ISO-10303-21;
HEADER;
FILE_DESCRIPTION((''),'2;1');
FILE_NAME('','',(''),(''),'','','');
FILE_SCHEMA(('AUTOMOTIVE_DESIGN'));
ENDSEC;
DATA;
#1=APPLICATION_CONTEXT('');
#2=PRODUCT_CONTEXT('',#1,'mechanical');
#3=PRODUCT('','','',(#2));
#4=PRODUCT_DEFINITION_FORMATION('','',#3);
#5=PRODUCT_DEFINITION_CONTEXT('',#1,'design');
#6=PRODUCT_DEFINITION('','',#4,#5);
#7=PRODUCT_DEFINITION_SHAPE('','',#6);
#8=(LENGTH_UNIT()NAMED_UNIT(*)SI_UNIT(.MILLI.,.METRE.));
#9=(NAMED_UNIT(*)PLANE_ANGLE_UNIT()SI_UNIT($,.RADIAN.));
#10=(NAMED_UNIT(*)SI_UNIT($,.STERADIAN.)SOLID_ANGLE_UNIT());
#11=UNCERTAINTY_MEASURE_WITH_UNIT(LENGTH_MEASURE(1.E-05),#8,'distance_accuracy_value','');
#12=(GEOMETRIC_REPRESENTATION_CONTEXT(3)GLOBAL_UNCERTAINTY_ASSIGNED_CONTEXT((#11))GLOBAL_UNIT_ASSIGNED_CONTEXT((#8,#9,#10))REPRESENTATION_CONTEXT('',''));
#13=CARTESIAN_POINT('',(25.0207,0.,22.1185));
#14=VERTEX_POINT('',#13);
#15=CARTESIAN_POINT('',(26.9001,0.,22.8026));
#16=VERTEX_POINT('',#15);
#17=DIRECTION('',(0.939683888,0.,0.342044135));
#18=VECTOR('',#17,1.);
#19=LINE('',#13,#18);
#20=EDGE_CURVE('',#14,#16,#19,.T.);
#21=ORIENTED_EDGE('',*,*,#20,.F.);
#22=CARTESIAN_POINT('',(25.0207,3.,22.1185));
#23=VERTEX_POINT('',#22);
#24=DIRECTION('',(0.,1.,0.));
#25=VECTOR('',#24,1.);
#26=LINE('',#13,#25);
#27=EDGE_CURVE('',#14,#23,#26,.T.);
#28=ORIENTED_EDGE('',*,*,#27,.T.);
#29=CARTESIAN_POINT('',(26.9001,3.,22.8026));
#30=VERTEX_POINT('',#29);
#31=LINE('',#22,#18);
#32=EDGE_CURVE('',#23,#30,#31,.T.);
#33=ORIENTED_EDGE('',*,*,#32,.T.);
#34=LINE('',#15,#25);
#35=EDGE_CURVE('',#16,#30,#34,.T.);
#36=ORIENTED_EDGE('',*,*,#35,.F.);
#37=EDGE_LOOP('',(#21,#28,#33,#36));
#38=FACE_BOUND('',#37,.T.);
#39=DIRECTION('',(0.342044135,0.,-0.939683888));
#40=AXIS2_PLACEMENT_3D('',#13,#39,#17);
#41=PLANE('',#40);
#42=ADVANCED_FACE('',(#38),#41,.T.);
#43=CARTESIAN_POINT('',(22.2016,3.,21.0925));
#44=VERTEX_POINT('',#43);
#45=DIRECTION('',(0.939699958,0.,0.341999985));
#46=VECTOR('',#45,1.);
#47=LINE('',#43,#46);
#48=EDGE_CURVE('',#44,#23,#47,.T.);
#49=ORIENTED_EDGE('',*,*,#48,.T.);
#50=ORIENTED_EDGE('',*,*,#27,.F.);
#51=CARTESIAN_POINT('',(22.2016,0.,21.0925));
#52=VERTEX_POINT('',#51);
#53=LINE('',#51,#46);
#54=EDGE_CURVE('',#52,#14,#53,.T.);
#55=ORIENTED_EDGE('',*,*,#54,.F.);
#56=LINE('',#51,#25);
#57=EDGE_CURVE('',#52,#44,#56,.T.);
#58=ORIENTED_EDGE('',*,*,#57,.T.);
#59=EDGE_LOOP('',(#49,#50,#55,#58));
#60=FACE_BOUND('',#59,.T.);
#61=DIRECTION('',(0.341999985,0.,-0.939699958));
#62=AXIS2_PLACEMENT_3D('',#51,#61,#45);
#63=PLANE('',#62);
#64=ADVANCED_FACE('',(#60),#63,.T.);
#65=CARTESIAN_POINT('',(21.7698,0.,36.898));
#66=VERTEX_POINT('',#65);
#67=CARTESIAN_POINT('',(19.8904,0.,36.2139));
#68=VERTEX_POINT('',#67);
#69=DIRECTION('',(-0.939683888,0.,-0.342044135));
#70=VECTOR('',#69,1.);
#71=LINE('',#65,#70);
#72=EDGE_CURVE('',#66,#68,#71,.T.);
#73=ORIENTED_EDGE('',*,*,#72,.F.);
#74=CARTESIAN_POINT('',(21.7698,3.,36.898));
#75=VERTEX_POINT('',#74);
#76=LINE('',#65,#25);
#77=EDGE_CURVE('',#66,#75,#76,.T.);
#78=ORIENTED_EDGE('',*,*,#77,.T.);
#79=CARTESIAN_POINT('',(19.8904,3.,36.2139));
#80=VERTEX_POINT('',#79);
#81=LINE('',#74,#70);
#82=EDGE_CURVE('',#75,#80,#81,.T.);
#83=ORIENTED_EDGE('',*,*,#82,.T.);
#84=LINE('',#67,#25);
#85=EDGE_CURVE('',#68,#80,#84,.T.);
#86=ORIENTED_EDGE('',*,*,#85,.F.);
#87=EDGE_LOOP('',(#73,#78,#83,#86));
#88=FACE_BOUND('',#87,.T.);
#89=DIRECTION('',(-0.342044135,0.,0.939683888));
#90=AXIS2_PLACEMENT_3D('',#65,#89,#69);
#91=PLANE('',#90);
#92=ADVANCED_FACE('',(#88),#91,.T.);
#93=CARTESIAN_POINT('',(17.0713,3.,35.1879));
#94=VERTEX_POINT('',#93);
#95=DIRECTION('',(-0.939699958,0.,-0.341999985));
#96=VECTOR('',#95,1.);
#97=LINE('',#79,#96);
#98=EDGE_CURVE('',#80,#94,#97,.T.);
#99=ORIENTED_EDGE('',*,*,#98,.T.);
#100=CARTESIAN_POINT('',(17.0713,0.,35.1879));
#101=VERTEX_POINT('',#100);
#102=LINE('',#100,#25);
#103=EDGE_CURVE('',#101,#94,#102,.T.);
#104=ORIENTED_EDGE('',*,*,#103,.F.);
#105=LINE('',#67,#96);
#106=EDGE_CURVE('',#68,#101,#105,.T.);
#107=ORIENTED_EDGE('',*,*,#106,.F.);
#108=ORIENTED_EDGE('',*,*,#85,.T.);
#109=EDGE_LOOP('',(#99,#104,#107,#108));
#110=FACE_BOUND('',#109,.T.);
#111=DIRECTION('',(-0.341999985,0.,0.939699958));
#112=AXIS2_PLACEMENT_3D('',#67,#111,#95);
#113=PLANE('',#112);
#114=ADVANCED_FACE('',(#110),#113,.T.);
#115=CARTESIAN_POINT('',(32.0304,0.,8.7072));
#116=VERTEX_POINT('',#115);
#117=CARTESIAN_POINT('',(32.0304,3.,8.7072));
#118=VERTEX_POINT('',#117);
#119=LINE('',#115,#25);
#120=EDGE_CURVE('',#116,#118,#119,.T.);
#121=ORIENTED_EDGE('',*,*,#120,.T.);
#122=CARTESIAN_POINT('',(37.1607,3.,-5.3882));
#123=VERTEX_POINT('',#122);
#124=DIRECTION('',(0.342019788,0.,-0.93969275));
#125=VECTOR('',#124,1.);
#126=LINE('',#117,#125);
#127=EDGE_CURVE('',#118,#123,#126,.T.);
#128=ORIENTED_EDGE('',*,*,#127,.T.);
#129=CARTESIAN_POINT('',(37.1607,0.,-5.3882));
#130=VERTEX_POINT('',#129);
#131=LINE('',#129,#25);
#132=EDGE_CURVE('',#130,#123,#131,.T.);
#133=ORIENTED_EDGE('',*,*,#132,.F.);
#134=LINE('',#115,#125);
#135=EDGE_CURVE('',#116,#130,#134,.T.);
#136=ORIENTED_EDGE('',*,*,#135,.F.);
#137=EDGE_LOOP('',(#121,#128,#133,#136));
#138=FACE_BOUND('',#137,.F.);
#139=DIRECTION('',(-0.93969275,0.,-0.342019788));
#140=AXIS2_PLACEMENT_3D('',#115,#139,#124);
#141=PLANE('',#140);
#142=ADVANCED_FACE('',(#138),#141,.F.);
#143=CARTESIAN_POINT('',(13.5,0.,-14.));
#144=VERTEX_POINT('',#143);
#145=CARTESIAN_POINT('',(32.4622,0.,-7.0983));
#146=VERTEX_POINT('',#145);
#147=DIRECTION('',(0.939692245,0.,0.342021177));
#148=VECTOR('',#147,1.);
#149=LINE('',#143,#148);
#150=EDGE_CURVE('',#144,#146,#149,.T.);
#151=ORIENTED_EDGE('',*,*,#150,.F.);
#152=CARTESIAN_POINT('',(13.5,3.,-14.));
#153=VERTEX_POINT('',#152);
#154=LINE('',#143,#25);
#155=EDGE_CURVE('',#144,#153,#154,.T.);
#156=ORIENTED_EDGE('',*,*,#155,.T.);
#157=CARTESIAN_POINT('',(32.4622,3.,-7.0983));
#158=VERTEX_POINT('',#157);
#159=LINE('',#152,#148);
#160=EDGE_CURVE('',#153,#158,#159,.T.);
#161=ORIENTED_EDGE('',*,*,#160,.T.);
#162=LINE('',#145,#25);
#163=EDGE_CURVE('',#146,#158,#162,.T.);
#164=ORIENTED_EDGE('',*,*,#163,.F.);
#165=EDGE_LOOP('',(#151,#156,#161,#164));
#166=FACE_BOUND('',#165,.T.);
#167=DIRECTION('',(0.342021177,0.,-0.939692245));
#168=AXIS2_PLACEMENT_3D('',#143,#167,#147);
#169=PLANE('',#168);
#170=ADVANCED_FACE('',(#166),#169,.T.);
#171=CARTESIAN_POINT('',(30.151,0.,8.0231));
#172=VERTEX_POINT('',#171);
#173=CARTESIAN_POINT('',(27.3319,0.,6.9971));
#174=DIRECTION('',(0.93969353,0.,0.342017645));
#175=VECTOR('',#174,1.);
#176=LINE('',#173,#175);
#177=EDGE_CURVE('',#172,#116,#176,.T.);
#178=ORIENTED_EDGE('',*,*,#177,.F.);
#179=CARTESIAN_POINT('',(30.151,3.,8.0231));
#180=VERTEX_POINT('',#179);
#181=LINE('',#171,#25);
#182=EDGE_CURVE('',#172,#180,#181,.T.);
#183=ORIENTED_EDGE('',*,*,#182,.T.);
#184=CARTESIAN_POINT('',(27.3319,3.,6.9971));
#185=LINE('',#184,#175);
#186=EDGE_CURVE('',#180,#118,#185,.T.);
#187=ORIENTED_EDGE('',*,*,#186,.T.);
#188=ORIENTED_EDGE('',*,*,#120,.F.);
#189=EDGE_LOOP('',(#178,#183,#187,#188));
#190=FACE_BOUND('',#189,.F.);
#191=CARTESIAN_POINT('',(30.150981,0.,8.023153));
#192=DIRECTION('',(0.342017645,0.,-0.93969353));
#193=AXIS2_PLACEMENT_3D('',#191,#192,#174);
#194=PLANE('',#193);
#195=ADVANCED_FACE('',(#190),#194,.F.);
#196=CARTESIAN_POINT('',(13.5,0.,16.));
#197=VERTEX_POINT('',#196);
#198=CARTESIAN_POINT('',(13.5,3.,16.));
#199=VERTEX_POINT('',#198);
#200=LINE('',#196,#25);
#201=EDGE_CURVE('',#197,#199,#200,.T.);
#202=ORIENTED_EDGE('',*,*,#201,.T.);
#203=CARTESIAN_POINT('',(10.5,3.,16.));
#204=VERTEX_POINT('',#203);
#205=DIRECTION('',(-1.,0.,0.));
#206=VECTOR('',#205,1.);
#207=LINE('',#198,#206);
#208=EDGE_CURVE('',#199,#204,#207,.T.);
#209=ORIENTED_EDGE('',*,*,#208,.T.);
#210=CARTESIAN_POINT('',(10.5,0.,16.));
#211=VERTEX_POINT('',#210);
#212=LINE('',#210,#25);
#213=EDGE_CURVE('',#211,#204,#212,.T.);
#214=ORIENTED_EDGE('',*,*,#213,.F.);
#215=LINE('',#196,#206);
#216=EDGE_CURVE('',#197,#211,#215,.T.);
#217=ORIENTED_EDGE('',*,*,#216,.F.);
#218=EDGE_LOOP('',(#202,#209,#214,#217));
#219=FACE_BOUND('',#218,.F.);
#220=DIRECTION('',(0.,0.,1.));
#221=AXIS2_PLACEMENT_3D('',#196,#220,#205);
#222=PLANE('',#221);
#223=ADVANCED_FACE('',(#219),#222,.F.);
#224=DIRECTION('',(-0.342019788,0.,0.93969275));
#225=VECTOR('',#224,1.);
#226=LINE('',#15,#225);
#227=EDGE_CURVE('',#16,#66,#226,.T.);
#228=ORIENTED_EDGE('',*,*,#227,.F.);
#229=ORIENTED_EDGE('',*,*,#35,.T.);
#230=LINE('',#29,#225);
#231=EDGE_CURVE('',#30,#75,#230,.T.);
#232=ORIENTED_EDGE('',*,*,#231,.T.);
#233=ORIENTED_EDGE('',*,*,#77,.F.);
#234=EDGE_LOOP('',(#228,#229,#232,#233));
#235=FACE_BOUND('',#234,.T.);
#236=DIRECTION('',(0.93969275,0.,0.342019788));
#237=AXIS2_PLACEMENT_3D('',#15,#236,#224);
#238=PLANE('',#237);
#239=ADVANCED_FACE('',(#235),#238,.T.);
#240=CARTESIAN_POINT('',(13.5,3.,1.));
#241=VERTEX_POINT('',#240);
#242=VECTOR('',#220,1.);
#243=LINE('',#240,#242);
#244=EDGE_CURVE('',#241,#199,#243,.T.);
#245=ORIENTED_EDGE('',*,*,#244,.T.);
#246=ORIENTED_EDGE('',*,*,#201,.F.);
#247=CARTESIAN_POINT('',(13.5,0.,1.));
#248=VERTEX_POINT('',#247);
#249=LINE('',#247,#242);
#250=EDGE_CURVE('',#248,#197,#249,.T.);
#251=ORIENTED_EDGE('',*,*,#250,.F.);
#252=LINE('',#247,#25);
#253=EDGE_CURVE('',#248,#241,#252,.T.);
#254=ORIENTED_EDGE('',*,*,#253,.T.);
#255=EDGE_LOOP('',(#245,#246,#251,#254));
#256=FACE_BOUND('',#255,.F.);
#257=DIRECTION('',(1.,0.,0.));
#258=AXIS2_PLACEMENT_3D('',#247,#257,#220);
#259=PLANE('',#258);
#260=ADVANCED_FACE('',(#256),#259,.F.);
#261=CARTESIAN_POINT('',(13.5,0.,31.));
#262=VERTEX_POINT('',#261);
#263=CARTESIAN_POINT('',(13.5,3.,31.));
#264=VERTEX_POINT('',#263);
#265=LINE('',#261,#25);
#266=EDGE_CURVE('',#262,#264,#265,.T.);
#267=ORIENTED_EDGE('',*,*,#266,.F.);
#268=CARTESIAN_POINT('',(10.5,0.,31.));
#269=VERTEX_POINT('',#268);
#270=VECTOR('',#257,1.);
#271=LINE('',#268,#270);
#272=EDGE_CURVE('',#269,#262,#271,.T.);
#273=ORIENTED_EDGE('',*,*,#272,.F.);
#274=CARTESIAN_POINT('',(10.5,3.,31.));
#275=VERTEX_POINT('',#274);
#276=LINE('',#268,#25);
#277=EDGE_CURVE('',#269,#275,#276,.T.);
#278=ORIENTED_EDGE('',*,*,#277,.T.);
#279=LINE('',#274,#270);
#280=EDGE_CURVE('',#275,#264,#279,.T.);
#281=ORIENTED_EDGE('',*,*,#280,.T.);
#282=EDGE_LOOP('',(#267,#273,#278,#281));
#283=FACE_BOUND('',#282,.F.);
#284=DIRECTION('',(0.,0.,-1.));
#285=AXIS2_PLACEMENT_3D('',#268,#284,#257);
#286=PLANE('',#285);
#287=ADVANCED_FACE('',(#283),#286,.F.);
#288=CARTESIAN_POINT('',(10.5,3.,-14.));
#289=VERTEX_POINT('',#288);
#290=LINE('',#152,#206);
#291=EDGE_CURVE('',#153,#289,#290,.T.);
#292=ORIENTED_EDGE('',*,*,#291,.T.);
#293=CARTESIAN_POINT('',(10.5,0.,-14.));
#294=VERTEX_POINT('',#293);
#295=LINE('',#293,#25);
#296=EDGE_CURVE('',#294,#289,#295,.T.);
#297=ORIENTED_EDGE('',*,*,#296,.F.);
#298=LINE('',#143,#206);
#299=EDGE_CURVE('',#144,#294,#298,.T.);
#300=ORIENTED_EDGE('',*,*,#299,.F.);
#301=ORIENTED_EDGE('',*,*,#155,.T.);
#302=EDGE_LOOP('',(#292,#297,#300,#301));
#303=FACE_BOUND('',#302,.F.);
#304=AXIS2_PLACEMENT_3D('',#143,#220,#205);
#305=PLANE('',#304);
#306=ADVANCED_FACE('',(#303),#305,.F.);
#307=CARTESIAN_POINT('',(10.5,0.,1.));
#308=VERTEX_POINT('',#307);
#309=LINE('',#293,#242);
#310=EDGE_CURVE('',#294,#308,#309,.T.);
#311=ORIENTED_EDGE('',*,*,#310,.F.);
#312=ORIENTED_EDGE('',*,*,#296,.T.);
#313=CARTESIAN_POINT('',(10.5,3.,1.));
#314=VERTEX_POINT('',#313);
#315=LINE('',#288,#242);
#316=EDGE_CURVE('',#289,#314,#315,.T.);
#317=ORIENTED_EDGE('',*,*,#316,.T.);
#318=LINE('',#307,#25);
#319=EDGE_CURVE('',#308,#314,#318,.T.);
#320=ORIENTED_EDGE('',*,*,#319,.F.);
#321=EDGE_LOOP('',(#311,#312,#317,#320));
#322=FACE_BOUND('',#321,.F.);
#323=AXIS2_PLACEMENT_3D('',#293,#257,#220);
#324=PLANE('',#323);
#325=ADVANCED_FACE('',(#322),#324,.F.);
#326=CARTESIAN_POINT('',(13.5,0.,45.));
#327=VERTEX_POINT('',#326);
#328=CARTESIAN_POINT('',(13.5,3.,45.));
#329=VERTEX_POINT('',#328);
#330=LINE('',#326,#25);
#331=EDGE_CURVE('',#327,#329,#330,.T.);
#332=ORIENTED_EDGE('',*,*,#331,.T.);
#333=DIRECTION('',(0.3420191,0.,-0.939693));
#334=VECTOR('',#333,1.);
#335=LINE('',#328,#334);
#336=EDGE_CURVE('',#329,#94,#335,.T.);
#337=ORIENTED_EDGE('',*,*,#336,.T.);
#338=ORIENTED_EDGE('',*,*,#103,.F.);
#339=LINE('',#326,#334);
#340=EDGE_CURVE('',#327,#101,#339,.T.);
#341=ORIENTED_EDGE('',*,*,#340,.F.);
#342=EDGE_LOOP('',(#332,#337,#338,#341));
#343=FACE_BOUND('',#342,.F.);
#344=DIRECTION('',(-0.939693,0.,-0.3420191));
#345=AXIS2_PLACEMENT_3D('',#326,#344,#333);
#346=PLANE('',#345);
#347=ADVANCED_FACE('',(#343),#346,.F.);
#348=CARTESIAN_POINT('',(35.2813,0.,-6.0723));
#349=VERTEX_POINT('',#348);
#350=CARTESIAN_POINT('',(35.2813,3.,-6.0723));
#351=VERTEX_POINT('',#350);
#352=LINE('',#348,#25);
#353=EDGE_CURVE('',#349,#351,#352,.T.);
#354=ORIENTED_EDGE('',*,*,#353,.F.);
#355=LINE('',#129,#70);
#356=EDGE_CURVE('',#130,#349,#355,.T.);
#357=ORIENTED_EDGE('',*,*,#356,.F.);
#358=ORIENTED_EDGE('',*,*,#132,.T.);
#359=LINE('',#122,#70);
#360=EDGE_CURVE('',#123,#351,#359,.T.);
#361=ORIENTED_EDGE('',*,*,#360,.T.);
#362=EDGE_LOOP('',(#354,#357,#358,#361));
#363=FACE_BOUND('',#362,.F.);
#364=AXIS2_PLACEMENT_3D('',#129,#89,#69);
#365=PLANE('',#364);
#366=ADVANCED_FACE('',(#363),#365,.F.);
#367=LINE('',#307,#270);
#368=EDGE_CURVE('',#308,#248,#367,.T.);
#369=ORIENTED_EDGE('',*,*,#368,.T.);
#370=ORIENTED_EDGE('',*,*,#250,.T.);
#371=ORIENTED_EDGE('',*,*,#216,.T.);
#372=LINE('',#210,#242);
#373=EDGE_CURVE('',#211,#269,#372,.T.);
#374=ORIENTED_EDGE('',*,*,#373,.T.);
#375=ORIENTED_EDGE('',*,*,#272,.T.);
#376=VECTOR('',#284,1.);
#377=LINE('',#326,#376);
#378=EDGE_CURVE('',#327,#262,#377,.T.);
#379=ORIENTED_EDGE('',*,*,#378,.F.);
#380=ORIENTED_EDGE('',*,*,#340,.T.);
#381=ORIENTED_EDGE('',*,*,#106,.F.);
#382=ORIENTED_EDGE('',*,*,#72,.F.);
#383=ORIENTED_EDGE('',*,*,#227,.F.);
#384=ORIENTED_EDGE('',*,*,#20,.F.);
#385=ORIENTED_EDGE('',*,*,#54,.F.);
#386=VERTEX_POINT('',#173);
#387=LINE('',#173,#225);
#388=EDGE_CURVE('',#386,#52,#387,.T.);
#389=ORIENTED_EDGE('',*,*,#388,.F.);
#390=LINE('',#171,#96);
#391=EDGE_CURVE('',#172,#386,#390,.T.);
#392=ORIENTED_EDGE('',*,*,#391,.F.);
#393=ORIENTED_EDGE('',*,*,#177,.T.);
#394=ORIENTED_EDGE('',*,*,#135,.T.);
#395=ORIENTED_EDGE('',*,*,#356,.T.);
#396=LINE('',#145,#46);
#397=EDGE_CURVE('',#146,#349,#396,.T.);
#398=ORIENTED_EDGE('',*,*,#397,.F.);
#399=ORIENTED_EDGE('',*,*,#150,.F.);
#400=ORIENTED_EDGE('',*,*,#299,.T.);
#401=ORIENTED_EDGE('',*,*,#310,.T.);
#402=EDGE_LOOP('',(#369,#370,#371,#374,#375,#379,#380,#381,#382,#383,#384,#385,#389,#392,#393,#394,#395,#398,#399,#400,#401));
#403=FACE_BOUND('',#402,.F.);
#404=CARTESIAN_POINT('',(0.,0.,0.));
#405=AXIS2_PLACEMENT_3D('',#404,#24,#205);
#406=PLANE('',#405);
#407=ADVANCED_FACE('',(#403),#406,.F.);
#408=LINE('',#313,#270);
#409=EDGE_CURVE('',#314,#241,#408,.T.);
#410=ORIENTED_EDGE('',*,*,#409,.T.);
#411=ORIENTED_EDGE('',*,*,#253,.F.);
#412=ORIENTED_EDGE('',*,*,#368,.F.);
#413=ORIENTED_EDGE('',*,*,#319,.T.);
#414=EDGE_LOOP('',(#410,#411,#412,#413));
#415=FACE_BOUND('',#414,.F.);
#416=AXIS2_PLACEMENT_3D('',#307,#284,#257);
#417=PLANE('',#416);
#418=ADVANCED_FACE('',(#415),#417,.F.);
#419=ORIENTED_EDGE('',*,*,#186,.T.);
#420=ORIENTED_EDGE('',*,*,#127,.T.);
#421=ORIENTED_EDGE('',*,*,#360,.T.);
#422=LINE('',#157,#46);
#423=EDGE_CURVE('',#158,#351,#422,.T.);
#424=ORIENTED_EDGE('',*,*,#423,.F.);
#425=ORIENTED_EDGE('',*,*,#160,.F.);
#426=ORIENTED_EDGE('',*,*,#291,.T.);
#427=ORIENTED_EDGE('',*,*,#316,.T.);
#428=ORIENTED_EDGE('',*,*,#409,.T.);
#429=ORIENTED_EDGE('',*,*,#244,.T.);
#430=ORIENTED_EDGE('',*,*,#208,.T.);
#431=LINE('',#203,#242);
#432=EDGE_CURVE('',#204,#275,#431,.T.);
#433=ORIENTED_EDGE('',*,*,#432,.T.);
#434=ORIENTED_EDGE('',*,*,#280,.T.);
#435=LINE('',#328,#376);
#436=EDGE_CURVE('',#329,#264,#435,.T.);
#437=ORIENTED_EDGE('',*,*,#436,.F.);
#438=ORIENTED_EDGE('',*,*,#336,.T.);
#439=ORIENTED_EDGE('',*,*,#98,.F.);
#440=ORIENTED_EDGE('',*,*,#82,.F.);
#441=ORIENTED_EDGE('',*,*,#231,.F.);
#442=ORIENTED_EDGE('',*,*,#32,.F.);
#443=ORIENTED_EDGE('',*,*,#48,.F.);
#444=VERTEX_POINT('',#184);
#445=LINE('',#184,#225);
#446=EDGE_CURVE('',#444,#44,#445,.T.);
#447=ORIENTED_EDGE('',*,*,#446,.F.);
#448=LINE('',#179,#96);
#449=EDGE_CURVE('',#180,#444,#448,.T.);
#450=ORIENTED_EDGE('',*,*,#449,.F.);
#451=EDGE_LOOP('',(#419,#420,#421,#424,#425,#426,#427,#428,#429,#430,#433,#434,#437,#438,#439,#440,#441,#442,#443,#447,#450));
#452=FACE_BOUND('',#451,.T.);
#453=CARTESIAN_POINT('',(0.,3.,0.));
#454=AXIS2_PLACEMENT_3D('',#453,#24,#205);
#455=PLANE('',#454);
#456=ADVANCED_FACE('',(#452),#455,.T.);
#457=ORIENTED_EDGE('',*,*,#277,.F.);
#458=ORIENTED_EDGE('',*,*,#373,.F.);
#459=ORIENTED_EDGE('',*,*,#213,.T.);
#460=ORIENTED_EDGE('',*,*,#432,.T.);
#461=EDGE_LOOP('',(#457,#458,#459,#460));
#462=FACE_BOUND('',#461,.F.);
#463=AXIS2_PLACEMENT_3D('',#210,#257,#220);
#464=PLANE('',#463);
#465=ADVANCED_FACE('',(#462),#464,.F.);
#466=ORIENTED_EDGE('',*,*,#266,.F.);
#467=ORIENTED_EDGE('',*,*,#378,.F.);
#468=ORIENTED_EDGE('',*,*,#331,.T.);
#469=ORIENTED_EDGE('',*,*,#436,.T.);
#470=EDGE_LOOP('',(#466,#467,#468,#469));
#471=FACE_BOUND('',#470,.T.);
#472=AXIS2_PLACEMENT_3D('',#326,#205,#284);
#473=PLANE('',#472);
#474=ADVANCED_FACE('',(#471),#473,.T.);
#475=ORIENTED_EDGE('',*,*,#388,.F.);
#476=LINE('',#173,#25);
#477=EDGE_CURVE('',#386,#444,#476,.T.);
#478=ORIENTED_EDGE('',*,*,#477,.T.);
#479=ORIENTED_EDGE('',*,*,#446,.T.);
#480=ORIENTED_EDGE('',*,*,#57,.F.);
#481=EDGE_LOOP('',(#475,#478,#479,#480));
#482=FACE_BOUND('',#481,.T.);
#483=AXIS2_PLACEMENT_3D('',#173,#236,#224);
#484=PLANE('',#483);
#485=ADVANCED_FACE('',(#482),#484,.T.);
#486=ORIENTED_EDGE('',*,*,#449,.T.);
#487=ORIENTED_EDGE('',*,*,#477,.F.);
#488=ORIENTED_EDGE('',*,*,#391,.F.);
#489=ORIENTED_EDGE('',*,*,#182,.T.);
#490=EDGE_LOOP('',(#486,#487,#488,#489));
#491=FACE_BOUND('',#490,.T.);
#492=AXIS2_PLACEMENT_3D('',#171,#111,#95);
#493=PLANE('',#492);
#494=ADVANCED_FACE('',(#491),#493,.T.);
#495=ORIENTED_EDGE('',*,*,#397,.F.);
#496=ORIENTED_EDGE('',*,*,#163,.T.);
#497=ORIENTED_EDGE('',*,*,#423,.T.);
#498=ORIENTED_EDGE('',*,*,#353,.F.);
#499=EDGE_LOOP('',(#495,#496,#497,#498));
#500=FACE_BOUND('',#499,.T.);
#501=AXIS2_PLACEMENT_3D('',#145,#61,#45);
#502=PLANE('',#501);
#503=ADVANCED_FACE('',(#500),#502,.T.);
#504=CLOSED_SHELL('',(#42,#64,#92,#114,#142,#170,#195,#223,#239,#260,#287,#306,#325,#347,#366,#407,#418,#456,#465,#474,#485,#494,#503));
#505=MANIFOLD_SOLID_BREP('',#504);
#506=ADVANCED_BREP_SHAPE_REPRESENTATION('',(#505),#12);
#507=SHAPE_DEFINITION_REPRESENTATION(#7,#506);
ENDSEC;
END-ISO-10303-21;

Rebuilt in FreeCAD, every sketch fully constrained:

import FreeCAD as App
import Part
import Sketcher
from FreeCAD import Vector
Q = App.Units.Quantity


def add_polygon(sketch, points):
    """Adds a closed chain of lines whose ends are joined by coincident constraints."""
    first, n = sketch.GeometryCount, len(points)
    for a, b in zip(points, points[1:] + points[:1]):
        sketch.addGeometry(Part.LineSegment(App.Vector(*a, 0), App.Vector(*b, 0)), False)
    for i in range(n):
        sketch.addConstraint(Sketcher.Constraint("Coincident", first + i, 2, first + (i + 1) % n, 1))

doc = App.newDocument("Part")
params = doc.addObject("Spreadsheet::Sheet", "Params")
for row, (alias, value) in enumerate([
    ("sketch1_width", "3 mm"),
    ("sketch1_height", "15 mm"),
    ("sketch1_length", "3 mm"),
    ("sketch1_length2", "15 mm"),
    ("sketch1_height2", "14 mm"),
    ("pad1_length", "3 mm"),
], start=1):
    params.set(f"A{row}", alias)
    params.set(f"B{row}", "=" + value)
    params.setAlias(f"B{row}", alias)

body = doc.addObject("PartDesign::Body", "Body")

# Sketch on XZ plane
sketch1 = body.newObject("Sketcher::SketchObject", "Sketch")
sketch1.AttachmentSupport = (doc.getObject("XZ_Plane"), [""])
sketch1.MapMode = "FlatFace"
add_polygon(sketch1, [(13.5, 1), (13.5, 16), (10.5, 16), (10.5, 31), (13.5, 31), (13.5, 45), (17.1, 35.2), (19.9, 36.2), (21.8, 36.9), (26.9, 22.8), (25, 22.1), (22.2, 21.1), (27.3, 7), (30.2, 8), (32, 8.7), (37.2, -5.4), (35.3, -6.1), (32.5, -7.1), (13.5, -14), (10.5, -14), (10.5, 1)])  # lines 0-20
sketch1.addConstraint([
    Sketcher.Constraint("Vertical", 0),
    Sketcher.Constraint("Horizontal", 1),
    Sketcher.Constraint("Vertical", 2),
    Sketcher.Constraint("Horizontal", 3),
    Sketcher.Constraint("Vertical", 4),
    Sketcher.Constraint("Horizontal", 18),
    Sketcher.Constraint("Vertical", 19),
    Sketcher.Constraint("Horizontal", 20),
    Sketcher.Constraint("Perpendicular", 5, 6),
    Sketcher.Constraint("Parallel", 6, 7),
    Sketcher.Constraint("Perpendicular", 7, 8),
    Sketcher.Constraint("Perpendicular", 8, 9),
    Sketcher.Constraint("Parallel", 9, 10),
    Sketcher.Constraint("Perpendicular", 10, 11),
    Sketcher.Constraint("Perpendicular", 11, 12),
    Sketcher.Constraint("Parallel", 12, 13),
    Sketcher.Constraint("Perpendicular", 13, 14),
    Sketcher.Constraint("Perpendicular", 14, 15),
    Sketcher.Constraint("Parallel", 15, 16),
    Sketcher.Constraint("Parallel", 16, 17),
    Sketcher.Constraint("Vertical", 0, 2, 3, 2),
    Sketcher.Constraint("Vertical", 4, 2, 17, 2),
    Sketcher.Constraint("Vertical", 2, 2, 18, 2),
    Sketcher.Constraint("Equal", 0, 2),
    Sketcher.Constraint("Equal", 2, 19),
    Sketcher.Constraint("Equal", 7, 9),
    Sketcher.Constraint("Equal", 6, 10),
    Sketcher.Constraint("Equal", 8, 11),
    Sketcher.Constraint("Equal", 10, 12),
    Sketcher.Constraint("Equal", 9, 13),
    Sketcher.Constraint("Equal", 11, 14),
    Sketcher.Constraint("Equal", 13, 15),
    Sketcher.Constraint("Equal", 12, 16),
    Sketcher.Constraint("DistanceX", 1, 2, 1, 1, 3.0),
    Sketcher.Constraint("DistanceY", 0, 1, 0, 2, 15.0),
    Sketcher.Constraint("Distance", 6, 3.0),
    Sketcher.Constraint("Distance", 8, 15.0),
    Sketcher.Constraint("DistanceY", 4, 1, 4, 2, 14.0),
    Sketcher.Constraint("Angle", 5, Q("-70 deg")),
    Sketcher.Constraint("Distance", 7, 2.0),
    Sketcher.Constraint("DistanceY", -1, 1, 0, 2, 16.0),
    Sketcher.Constraint("DistanceX", -1, 1, 0, 2, 13.5),
])
sketch1.setExpression("Constraints[54]", "Params.sketch1_width")
sketch1.setExpression("Constraints[55]", "Params.sketch1_height")
sketch1.setExpression("Constraints[56]", "Params.sketch1_length")
sketch1.setExpression("Constraints[57]", "Params.sketch1_length2")
sketch1.setExpression("Constraints[58]", "Params.sketch1_height2")
pad1 = body.newObject("PartDesign::Pad", "Pad")
pad1.Profile = sketch1
pad1.setExpression("Length", "Params.pad1_length")
pad1.Reversed = True

doc.recompute()
